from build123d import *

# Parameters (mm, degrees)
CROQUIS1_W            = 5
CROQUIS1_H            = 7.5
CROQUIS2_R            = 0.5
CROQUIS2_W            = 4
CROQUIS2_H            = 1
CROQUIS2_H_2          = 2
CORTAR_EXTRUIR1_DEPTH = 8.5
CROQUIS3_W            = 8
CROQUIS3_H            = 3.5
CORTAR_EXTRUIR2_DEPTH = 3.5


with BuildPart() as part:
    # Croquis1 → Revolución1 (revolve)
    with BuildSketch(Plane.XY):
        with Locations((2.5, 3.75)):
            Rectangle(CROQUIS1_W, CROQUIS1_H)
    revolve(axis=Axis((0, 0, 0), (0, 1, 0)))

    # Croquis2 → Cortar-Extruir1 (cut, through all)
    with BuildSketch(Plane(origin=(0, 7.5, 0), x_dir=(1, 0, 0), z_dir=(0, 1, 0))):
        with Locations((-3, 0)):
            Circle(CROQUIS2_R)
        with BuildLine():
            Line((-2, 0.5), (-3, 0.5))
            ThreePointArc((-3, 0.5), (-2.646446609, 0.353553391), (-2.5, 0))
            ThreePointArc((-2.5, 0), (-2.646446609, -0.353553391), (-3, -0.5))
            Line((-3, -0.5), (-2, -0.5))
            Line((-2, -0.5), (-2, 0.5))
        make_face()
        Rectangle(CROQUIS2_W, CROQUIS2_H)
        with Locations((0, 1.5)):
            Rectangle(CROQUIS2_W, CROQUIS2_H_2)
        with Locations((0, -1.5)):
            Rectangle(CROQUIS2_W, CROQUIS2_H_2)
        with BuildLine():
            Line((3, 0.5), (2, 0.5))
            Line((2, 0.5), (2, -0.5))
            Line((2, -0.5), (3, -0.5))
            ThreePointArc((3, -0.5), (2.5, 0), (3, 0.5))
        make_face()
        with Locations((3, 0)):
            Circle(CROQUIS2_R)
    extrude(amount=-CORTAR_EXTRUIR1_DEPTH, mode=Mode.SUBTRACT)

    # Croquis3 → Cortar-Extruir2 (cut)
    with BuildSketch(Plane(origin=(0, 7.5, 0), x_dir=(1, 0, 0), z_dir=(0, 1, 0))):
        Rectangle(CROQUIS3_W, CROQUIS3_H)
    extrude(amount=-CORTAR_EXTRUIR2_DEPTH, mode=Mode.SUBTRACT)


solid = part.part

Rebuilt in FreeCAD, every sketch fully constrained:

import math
import FreeCAD as App
import Part
import Sketcher
from FreeCAD import Vector


def add_polygon(sketch, points):
    """Adds a closed chain of lines whose ends are joined by coincident constraints."""
    first, n = sketch.GeometryCount, len(points)
    for a, b in zip(points, points[1:] + points[:1]):
        sketch.addGeometry(Part.LineSegment(App.Vector(*a, 0), App.Vector(*b, 0)), False)
    for i in range(n):
        sketch.addConstraint(Sketcher.Constraint("Coincident", first + i, 2, first + (i + 1) % n, 1))

doc = App.newDocument("Part")
body = doc.addObject("PartDesign::Body", "Body")

# Sketch on XY plane
sketch1 = body.newObject("Sketcher::SketchObject", "Sketch")
sketch1.AttachmentSupport = (doc.getObject("XY_Plane"), [""])
sketch1.MapMode = "FlatFace"
add_polygon(sketch1, [(0, 8), (0, 0), (5, 0), (5, 8)])  # lines 0-3
sketch1.addConstraint(Sketcher.Constraint("Vertical", 0))
sketch1.addConstraint(Sketcher.Constraint("Horizontal", 1))
sketch1.addConstraint(Sketcher.Constraint("Vertical", 2))
sketch1.addConstraint(Sketcher.Constraint("Horizontal", 3))
sketch1.addConstraint(Sketcher.Constraint("Coincident", 0, 2, -1, 1))
sketch1.addConstraint(Sketcher.Constraint("DistanceX", 1, 1, 1, 2, 5.0))
sketch1.addConstraint(Sketcher.Constraint("DistanceY", 0, 2, 0, 1, 7.5))
revolution = body.newObject("PartDesign::Revolution", "Revolution")
revolution.Profile = sketch1
revolution.ReferenceAxis = (sketch1, ["V_Axis"])
revolution.Angle = 360

# Sketch on XZ plane
sketch2 = body.newObject("Sketcher::SketchObject", "Sketch001")
sketch2.AttachmentSupport = (doc.getObject("XZ_Plane"), [""])
sketch2.MapMode = "FlatFace"
sketch2.AttachmentOffset = App.Placement(Vector(0, 0, -7.5), App.Rotation())
sketch2.addGeometry(Part.ArcOfCircle(Part.Circle(Vector(-3, 0, 0), Vector(0, 0, 1), 0.5), math.radians(90), math.radians(270)), False)
sketch2.addGeometry(Part.LineSegment(Vector(-3, 0.5, 0), Vector(-2, 0.5, 0)), False)
sketch2.addGeometry(Part.LineSegment(Vector(-2, 0.5, 0), Vector(-2, 2.5, 0)), False)
sketch2.addGeometry(Part.LineSegment(Vector(-2, 2.5, 0), Vector(2, 2.5, 0)), False)
sketch2.addGeometry(Part.LineSegment(Vector(2, 2.5, 0), Vector(2, 0.5, 0)), False)
sketch2.addGeometry(Part.LineSegment(Vector(2, 0.5, 0), Vector(3, 0.5, 0)), False)
sketch2.addGeometry(Part.ArcOfCircle(Part.Circle(Vector(3, 0, 0), Vector(0, 0, 1), 0.5), math.radians(-90), math.radians(90)), False)
sketch2.addGeometry(Part.LineSegment(Vector(3, -0.5, 0), Vector(2, -0.5, 0)), False)
sketch2.addGeometry(Part.LineSegment(Vector(2, -0.5, 0), Vector(2, -2.5, 0)), False)
sketch2.addGeometry(Part.LineSegment(Vector(2, -2.5, 0), Vector(-2, -2.5, 0)), False)
sketch2.addGeometry(Part.LineSegment(Vector(-2, -2.5, 0), Vector(-2, -0.5, 0)), False)
sketch2.addGeometry(Part.LineSegment(Vector(-2, -0.5, 0), Vector(-3, -0.5, 0)), False)
sketch2.addConstraint(Sketcher.Constraint("Tangent", 0, 1, 1, 1))
sketch2.addConstraint(Sketcher.Constraint("Coincident", 1, 2, 2, 1))
sketch2.addConstraint(Sketcher.Constraint("Coincident", 2, 2, 3, 1))
sketch2.addConstraint(Sketcher.Constraint("Coincident", 3, 2, 4, 1))
sketch2.addConstraint(Sketcher.Constraint("Coincident", 4, 2, 5, 1))
sketch2.addConstraint(Sketcher.Constraint("Tangent", 5, 2, 6, 2))
sketch2.addConstraint(Sketcher.Constraint("Tangent", 6, 1, 7, 1))
sketch2.addConstraint(Sketcher.Constraint("Coincident", 7, 2, 8, 1))
sketch2.addConstraint(Sketcher.Constraint("Coincident", 8, 2, 9, 1))
sketch2.addConstraint(Sketcher.Constraint("Coincident", 9, 2, 10, 1))
sketch2.addConstraint(Sketcher.Constraint("Coincident", 10, 2, 11, 1))
sketch2.addConstraint(Sketcher.Constraint("Tangent", 11, 2, 0, 2))
sketch2.addConstraint(Sketcher.Constraint("Horizontal", 1))
sketch2.addConstraint(Sketcher.Constraint("Vertical", 2))
sketch2.addConstraint(Sketcher.Constraint("Horizontal", 3))
sketch2.addConstraint(Sketcher.Constraint("Vertical", 4))
sketch2.addConstraint(Sketcher.Constraint("Horizontal", 5))
sketch2.addConstraint(Sketcher.Constraint("Horizontal", 7))
sketch2.addConstraint(Sketcher.Constraint("Vertical", 8))
sketch2.addConstraint(Sketcher.Constraint("Horizontal", 9))
sketch2.addConstraint(Sketcher.Constraint("Vertical", 10))
sketch2.addConstraint(Sketcher.Constraint("Horizontal", 11))
sketch2.addConstraint(Sketcher.Constraint("Equal", 0, 6))
sketch2.addConstraint(Sketcher.Constraint("Symmetric", 0, 3, 6, 3, -1, 1))
sketch2.addConstraint(Sketcher.Constraint("Symmetric", 2, 2, 8, 2, -1, 1))
sketch2.addConstraint(Sketcher.Constraint("Symmetric", 1, 2, 4, 2, -2))
sketch2.addConstraint(Sketcher.Constraint("Vertical", 2, 2, 9, 2))
sketch2.addConstraint(Sketcher.Constraint("Radius", 0, 0.5))
sketch2.addConstraint(Sketcher.Constraint("DistanceX", 1, 1, 1, 2, 1.0))
sketch2.addConstraint(Sketcher.Constraint("DistanceX", 3, 1, 3, 2, 4.0))
sketch2.addConstraint(Sketcher.Constraint("DistanceY", 2, 1, 2, 2, 2.0))
pocket1 = body.newObject("PartDesign::Pocket", "Pocket")
pocket1.Profile = sketch2
pocket1.Type = "ThroughAll"
pocket1.Reversed = True

# Sketch on XZ plane
sketch3 = body.newObject("Sketcher::SketchObject", "Sketch002")
sketch3.AttachmentSupport = (doc.getObject("XZ_Plane"), [""])
sketch3.MapMode = "FlatFace"
sketch3.AttachmentOffset = App.Placement(Vector(0, 0, -7.5), App.Rotation())
add_polygon(sketch3, [(-4, -1.8), (-4, 1.8), (4, 1.8), (4, -1.8)])  # lines 0-3
sketch3.addConstraint(Sketcher.Constraint("Vertical", 0))
sketch3.addConstraint(Sketcher.Constraint("Horizontal", 1))
sketch3.addConstraint(Sketcher.Constraint("Vertical", 2))
sketch3.addConstraint(Sketcher.Constraint("Horizontal", 3))
sketch3.addConstraint(Sketcher.Constraint("Symmetric", 0, 2, 2, 2, -1, 1))
sketch3.addConstraint(Sketcher.Constraint("DistanceX", 1, 1, 1, 2, 8.0))
sketch3.addConstraint(Sketcher.Constraint("DistanceY", 0, 1, 0, 2, 3.5))
pocket2 = body.newObject("PartDesign::Pocket", "Pocket001")
pocket2.Profile = sketch3
pocket2.Length = 3.5
pocket2.Reversed = True

doc.recompute()
